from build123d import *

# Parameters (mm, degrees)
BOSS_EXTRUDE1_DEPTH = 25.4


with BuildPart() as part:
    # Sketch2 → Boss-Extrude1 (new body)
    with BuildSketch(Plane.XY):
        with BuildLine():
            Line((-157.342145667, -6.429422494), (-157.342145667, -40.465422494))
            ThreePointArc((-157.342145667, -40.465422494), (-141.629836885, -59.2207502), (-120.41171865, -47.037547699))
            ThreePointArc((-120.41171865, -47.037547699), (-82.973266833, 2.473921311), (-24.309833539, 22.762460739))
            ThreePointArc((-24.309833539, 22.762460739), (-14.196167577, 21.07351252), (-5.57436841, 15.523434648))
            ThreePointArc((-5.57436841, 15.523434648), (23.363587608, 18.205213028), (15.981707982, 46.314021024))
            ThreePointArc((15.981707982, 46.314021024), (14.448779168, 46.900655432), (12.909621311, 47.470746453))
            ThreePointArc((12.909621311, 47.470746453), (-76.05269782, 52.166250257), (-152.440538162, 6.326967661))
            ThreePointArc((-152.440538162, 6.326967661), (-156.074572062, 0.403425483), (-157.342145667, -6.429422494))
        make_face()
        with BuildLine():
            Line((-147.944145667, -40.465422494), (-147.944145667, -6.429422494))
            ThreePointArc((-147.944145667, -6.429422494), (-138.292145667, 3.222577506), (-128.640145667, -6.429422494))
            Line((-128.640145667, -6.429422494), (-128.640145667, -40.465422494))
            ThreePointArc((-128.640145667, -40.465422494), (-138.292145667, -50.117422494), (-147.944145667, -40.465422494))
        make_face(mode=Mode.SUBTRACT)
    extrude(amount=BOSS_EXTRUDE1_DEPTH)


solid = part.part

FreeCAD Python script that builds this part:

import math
import FreeCAD as App
import Part
import Sketcher
from FreeCAD import Vector
Q = App.Units.Quantity

doc = App.newDocument("Part")
body = doc.addObject("PartDesign::Body", "Body")

sketch1 = body.newObject("Sketcher::SketchObject", "Sketch")
sketch1.AttachmentSupport = (doc.getObject("XY_Plane"), [""])
sketch1.MapMode = "FlatFace"
sketch1.addGeometry([
    Part.LineSegment(Vector(-157.342146, -6.429422, 0), Vector(-157.342146, -40.465422, 0)),
    Part.ArcOfCircle(Part.Circle(Vector(-138.292146, -40.465422, 0), Vector(0, 0, 1), 19.05), math.radians(180), math.radians(339.818604)),
    Part.ArcOfCircle(Part.Circle(Vector(-20.281327, -83.841449, 0), Vector(0, 0, 1), 106.68), math.radians(92.164148), math.radians(159.818604)),
    Part.ArcOfCircle(Part.Circle(Vector(-23.350665, -2.619422, 0), Vector(0, 0, 1), 25.4), math.radians(45.584691), math.radians(92.164148)),
    Part.ArcOfCircle(Part.Circle(Vector(7.757854, 29.130578, 0), Vector(0, 0, 1), 19.05), math.radians(-134.415309), math.radians(64.42461)),
    Part.ArcOfCircle(Part.Circle(Vector(-39.2534, -95.724159, 0), Vector(0, 0, 1), 152.400005), math.radians(68.750182), math.radians(69.984336)),
    Part.ArcOfCircle(Part.Circle(Vector(-39.253398, -95.724154, 0), Vector(0, 0, 1), 152.4), math.radians(69.984336), math.radians(137.961734)),
    Part.ArcOfCircle(Part.Circle(Vector(-138.292146, -6.429422, 0), Vector(0, 0, 1), 19.05), math.radians(137.961734), math.radians(180)),
    Part.ArcOfCircle(Part.Circle(Vector(-138.292146, -40.465422, 0), Vector(0, 0, 1), 9.652), math.radians(180), math.radians(360)),
    Part.LineSegment(Vector(-147.944146, -40.465422, 0), Vector(-147.944146, -6.429422, 0)),
    Part.ArcOfCircle(Part.Circle(Vector(-138.292146, -6.429422, 0), Vector(0, 0, 1), 9.652), math.radians(0), math.radians(180)),
    Part.LineSegment(Vector(-128.640146, -6.429422, 0), Vector(-128.640146, -40.465422, 0)),
], False)
sketch1.addConstraint([
    Sketcher.Constraint("Tangent", 0, 2, 1, 1),
    Sketcher.Constraint("Tangent", 1, 2, 2, 2),
    Sketcher.Constraint("Tangent", 2, 1, 3, 2),
    Sketcher.Constraint("Tangent", 3, 1, 4, 1),
    Sketcher.Constraint("Coincident", 4, 2, 5, 1),
    Sketcher.Constraint("Tangent", 5, 2, 6, 1),
    Sketcher.Constraint("Tangent", 6, 2, 7, 1),
    Sketcher.Constraint("Tangent", 7, 2, 0, 1),
    Sketcher.Constraint("Tangent", 8, 1, 9, 1),
    Sketcher.Constraint("Tangent", 9, 2, 10, 2),
    Sketcher.Constraint("Tangent", 10, 1, 11, 1),
    Sketcher.Constraint("Tangent", 11, 2, 8, 2),
    Sketcher.Constraint("Vertical", 0),
    Sketcher.Constraint("Vertical", 9),
    Sketcher.Constraint("Vertical", 11),
    Sketcher.Constraint("Coincident", 8, 3, 1, 3),
    Sketcher.Constraint("Coincident", 10, 3, 7, 3),
    Sketcher.Constraint("Equal", 1, 4),
    Sketcher.Constraint("Radius", 3, Q("1 in")),
    Sketcher.Constraint("Radius", 6, Q("6 in")),
    Sketcher.Constraint("Radius", 2, Q("4.2 in")),
    Sketcher.Constraint("Radius", 1, Q("0.75 in")),
    Sketcher.Constraint("Radius", 8, Q("0.38 in")),
    Sketcher.Constraint("DistanceY", 0, 2, 0, 1, Q("1.34 in")),
    Sketcher.Constraint("DistanceY", 1, 3, 3, 3, Q("1.49 in")),
    Sketcher.Constraint("DistanceY", 3, 3, 4, 3, Q("1.25 in")),
    Sketcher.Constraint("DistanceX", 1, 3, 4, 3, Q("5.75 in")),
    Sketcher.Constraint("Radius", 5, Q("152.400005 mm")),
    Sketcher.Constraint("DistanceX", 5, 3, -1, 1, Q("39.2534 mm")),
    Sketcher.Constraint("DistanceY", 2, 3, -1, 1, Q("83.841449 mm")),
    Sketcher.Constraint("DistanceY", 5, 3, -1, 1, Q("95.724159 mm")),
    Sketcher.Constraint("DistanceX", -1, 1, 5, 2, Q("12.909621 mm")),
])
pad1 = body.newObject("PartDesign::Pad", "Pad")
pad1.Profile = sketch1
pad1.Length = Q("1 in")

doc.recompute()
